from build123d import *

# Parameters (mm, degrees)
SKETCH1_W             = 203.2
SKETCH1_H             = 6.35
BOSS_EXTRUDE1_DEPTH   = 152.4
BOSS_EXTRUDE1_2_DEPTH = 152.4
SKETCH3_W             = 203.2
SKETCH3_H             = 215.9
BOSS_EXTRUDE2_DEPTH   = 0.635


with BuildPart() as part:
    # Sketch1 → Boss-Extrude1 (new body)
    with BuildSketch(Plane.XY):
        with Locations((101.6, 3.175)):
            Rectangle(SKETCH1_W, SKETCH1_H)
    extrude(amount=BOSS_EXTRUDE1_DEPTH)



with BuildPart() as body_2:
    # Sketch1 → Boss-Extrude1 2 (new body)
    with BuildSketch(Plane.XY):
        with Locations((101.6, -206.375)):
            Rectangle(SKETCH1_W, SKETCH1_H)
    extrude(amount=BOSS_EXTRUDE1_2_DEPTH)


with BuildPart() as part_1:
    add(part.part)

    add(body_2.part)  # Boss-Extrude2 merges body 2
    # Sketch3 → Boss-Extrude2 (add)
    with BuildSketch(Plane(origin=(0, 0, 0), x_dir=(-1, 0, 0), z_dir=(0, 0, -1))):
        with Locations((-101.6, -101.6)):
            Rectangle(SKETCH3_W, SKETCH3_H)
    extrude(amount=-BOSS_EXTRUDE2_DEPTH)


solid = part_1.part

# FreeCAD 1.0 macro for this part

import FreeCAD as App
import Part
import Sketcher

V = App.Vector
Q = App.Units.Quantity

doc = App.newDocument("Part")
body = doc.addObject("PartDesign::Body", "Body")

# Sketch on XY plane
sketch1 = body.newObject("Sketcher::SketchObject", "Sketch")
sketch1.AttachmentSupport = (doc.getObject("XY_Plane"), [""])
sketch1.MapMode = "FlatFace"
sketch1.addGeometry(Part.LineSegment(V(0, 6, 0), V(0, 0, 0)), False)
sketch1.addGeometry(Part.LineSegment(V(0, 0, 0), V(203, 0, 0)), False)
sketch1.addGeometry(Part.LineSegment(V(203, 0, 0), V(203, 6, 0)), False)
sketch1.addGeometry(Part.LineSegment(V(203, 6, 0), V(0, 6, 0)), False)
sketch1.addConstraint(Sketcher.Constraint("Coincident", 0, 2, 1, 1))
sketch1.addConstraint(Sketcher.Constraint("Coincident", 1, 2, 2, 1))
sketch1.addConstraint(Sketcher.Constraint("Coincident", 2, 2, 3, 1))
sketch1.addConstraint(Sketcher.Constraint("Coincident", 3, 2, 0, 1))
sketch1.addConstraint(Sketcher.Constraint("Vertical", 0))
sketch1.addConstraint(Sketcher.Constraint("Horizontal", 1))
sketch1.addConstraint(Sketcher.Constraint("Vertical", 2))
sketch1.addConstraint(Sketcher.Constraint("Horizontal", 3))
sketch1.addConstraint(Sketcher.Constraint("Coincident", 0, 2, -1, 1))
sketch1.addConstraint(Sketcher.Constraint("DistanceX", 1, 1, 1, 2, Q("8 in")))
sketch1.addConstraint(Sketcher.Constraint("DistanceY", 0, 2, 0, 1, Q("0.25 in")))
pad1 = body.newObject("PartDesign::Pad", "Pad")
pad1.Profile = sketch1
pad1.Length = Q("6 in")
body2 = doc.addObject("PartDesign::Body", "Body001")

# Sketch on XY plane
sketch2 = body2.newObject("Sketcher::SketchObject", "Sketch001")
sketch2.AttachmentSupport = (doc.getObject("XY_Plane001"), [""])
sketch2.MapMode = "FlatFace"
sketch2.addGeometry(Part.LineSegment(V(0, -203, 0), V(0, -210, 0)), False)
sketch2.addGeometry(Part.LineSegment(V(0, -210, 0), V(203, -210, 0)), False)
sketch2.addGeometry(Part.LineSegment(V(203, -210, 0), V(203, -203, 0)), False)
sketch2.addGeometry(Part.LineSegment(V(203, -203, 0), V(0, -203, 0)), False)
sketch2.addConstraint(Sketcher.Constraint("Coincident", 0, 2, 1, 1))
sketch2.addConstraint(Sketcher.Constraint("Coincident", 1, 2, 2, 1))
sketch2.addConstraint(Sketcher.Constraint("Coincident", 2, 2, 3, 1))
sketch2.addConstraint(Sketcher.Constraint("Coincident", 3, 2, 0, 1))
sketch2.addConstraint(Sketcher.Constraint("Vertical", 0))
sketch2.addConstraint(Sketcher.Constraint("Horizontal", 1))
sketch2.addConstraint(Sketcher.Constraint("Vertical", 2))
sketch2.addConstraint(Sketcher.Constraint("Horizontal", 3))
sketch2.addConstraint(Sketcher.Constraint("PointOnObject", 0, 2, -2))
sketch2.addConstraint(Sketcher.Constraint("DistanceX", 1, 1, 1, 2, Q("8 in")))
sketch2.addConstraint(Sketcher.Constraint("DistanceY", 2, 2, -1, 1, Q("8 in")))
sketch2.addConstraint(Sketcher.Constraint("DistanceY", 0, 2, 0, 1, Q("0.25 in")))
pad2 = body2.newObject("PartDesign::Pad", "Pad001")
pad2.Profile = sketch2
pad2.Length = Q("6 in")
body.AllowCompound = True
doc.recompute()

boolean = body.newObject("PartDesign::Boolean", "Boolean")
boolean.Type = "Fuse"
boolean.addObjects([body2])

# Sketch on XY plane
sketch3 = body.newObject("Sketcher::SketchObject", "Sketch002")
sketch3.AttachmentSupport = (doc.getObject("XY_Plane"), [""])
sketch3.MapMode = "FlatFace"
sketch3.addGeometry(Part.LineSegment(V(203, 6, 0), V(203, -210, 0)), False)
sketch3.addGeometry(Part.LineSegment(V(203, -210, 0), V(0, -210, 0)), False)
sketch3.addGeometry(Part.LineSegment(V(0, -210, 0), V(0, 6, 0)), False)
sketch3.addGeometry(Part.LineSegment(V(0, 6, 0), V(203, 6, 0)), False)
sketch3.addConstraint(Sketcher.Constraint("Coincident", 0, 2, 1, 1))
sketch3.addConstraint(Sketcher.Constraint("Coincident", 1, 2, 2, 1))
sketch3.addConstraint(Sketcher.Constraint("Coincident", 2, 2, 3, 1))
sketch3.addConstraint(Sketcher.Constraint("Coincident", 3, 2, 0, 1))
sketch3.addConstraint(Sketcher.Constraint("Vertical", 0))
sketch3.addConstraint(Sketcher.Constraint("Horizontal", 1))
sketch3.addConstraint(Sketcher.Constraint("Vertical", 2))
sketch3.addConstraint(Sketcher.Constraint("Horizontal", 3))
sketch3.addConstraint(Sketcher.Constraint("PointOnObject", 1, 2, -2))
sketch3.addConstraint(Sketcher.Constraint("DistanceX", 1, 2, 1, 1, Q("8 in")))
sketch3.addConstraint(Sketcher.Constraint("DistanceY", 0, 2, 0, 1, Q("8.5 in")))
sketch3.addConstraint(Sketcher.Constraint("DistanceY", 0, 2, -1, 1, Q("8.25 in")))
pad3 = body.newObject("PartDesign::Pad", "Pad002")
pad3.Profile = sketch3
pad3.Length = Q("0.025 in")

doc.recompute()
